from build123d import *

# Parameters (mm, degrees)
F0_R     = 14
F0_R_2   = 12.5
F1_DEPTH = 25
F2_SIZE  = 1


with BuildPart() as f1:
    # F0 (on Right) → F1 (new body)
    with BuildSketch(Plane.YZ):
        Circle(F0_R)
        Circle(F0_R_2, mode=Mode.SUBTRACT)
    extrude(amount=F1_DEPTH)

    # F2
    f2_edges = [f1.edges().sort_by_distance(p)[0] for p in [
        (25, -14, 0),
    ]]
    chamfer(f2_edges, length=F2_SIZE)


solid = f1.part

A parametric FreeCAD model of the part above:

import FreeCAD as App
import Part
import Sketcher


def edges_at(feature, points):
    """Names of the edges that pass closest to the given points."""
    edges = feature.Shape.Edges
    near = lambda p: min(range(len(edges)), key=lambda i: edges[i].distToShape(Part.Vertex(*p))[0])
    return sorted({f"Edge{near(p) + 1}" for p in points})

doc = App.newDocument("Part")
body = doc.addObject("PartDesign::Body", "Body")

# Sketch on YZ plane
sketch1 = doc.addObject("Sketcher::SketchObject", "Sketch")
body.addObject(sketch1)
sketch1.AttachmentSupport = (doc.YZ_Plane, [""])
sketch1.MapMode = "FlatFace"
sketch1.addGeometry([
    Part.Circle(App.Vector(0, 0, 0), App.Vector(0, 0, 1), 14),
    Part.Circle(App.Vector(0, 0, 0), App.Vector(0, 0, 1), 12),
], False)
sketch1.addConstraint([
    Sketcher.Constraint("Coincident", 0, 3, -1, 1),
    Sketcher.Constraint("Coincident", 1, 3, -1, 1),
    Sketcher.Constraint("Diameter", 0, 28.0),
    Sketcher.Constraint("Diameter", 1, 25.0),
])
pad1 = doc.addObject("PartDesign::Pad", "Pad")
body.addObject(pad1)
pad1.Profile = sketch1
pad1.Length = 25
doc.recompute()

chamfer = doc.addObject("PartDesign::Chamfer", "Chamfer")
body.addObject(chamfer)
chamfer.Base = (pad1, edges_at(pad1, [(25, -14, 0)]))
chamfer.Size = 1

doc.recompute()
